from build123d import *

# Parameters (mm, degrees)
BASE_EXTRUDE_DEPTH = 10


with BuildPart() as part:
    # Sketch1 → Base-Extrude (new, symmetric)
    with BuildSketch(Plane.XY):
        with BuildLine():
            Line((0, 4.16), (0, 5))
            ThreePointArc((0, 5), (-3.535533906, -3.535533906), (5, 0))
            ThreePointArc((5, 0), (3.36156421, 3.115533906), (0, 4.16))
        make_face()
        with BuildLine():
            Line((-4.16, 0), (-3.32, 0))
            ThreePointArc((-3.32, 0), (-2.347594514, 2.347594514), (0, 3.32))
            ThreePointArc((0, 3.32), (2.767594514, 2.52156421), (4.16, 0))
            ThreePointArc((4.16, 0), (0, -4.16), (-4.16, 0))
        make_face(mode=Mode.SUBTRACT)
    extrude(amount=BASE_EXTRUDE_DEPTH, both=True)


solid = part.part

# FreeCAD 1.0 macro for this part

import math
import FreeCAD as App
import Part
import Sketcher

V = App.Vector

doc = App.newDocument("Part")
body = doc.addObject("PartDesign::Body", "Body")

sketch1 = doc.addObject("Sketcher::SketchObject", "Sketch")
body.addObject(sketch1)
sketch1.AttachmentSupport = (doc.XY_Plane, [""])
sketch1.MapMode = "FlatFace"
sketch1.addGeometry([
    Part.LineSegment(V(0, 4.16, 0), V(0, 5, 0)),
    Part.ArcOfCircle(Part.Circle(V(0, 0, 0), V(0, 0, 1), 5), math.radians(90), math.radians(360)),
    Part.ArcOfCircle(Part.Circle(V(0.42, -0.42, 0), V(0, 0, 1), 4.599217), math.radians(5.239544), math.radians(95.239544)),
    Part.ArcOfCircle(Part.Circle(V(0, 0, 0), V(0, 0, 1), 4.16), math.radians(180), math.radians(360)),
    Part.LineSegment(V(-4.16, 0, 0), V(-3.32, 0, 0)),
    Part.ArcOfCircle(Part.Circle(V(0, 0, 0), V(0, 0, 1), 3.32), math.radians(90), math.radians(180)),
    Part.ArcOfCircle(Part.Circle(V(0.42, -0.42, 0), V(0, 0, 1), 3.763509), math.radians(6.40744), math.radians(96.40744)),
], False)
sketch1.addConstraint([
    Sketcher.Constraint("Coincident", 0, 2, 1, 1),
    Sketcher.Constraint("Coincident", 1, 2, 2, 1),
    Sketcher.Constraint("Coincident", 2, 2, 0, 1),
    Sketcher.Constraint("Coincident", 3, 1, 4, 1),
    Sketcher.Constraint("Coincident", 4, 2, 5, 2),
    Sketcher.Constraint("Coincident", 5, 1, 6, 2),
    Sketcher.Constraint("Coincident", 6, 1, 3, 2),
    Sketcher.Constraint("Vertical", 0),
    Sketcher.Constraint("Horizontal", 4),
    Sketcher.Constraint("Coincident", 1, 3, -1, 1),
    Sketcher.Constraint("Coincident", 3, 3, -1, 1),
    Sketcher.Constraint("Coincident", 5, 3, -1, 1),
    Sketcher.Constraint("Coincident", 6, 3, 2, 3),
    Sketcher.Constraint("PointOnObject", 0, 2, -2),
    Sketcher.Constraint("PointOnObject", 1, 2, -1),
    Sketcher.Constraint("PointOnObject", 3, 1, -1),
    Sketcher.Constraint("PointOnObject", 5, 1, -2),
    Sketcher.Constraint("PointOnObject", 6, 1, -1),
    Sketcher.Constraint("Equal", 4, 0),
    Sketcher.Constraint("Radius", 1, 5.0),
    Sketcher.Constraint("Radius", 3, 4.16),
    Sketcher.Constraint("Radius", 5, 3.32),
])
pad1 = doc.addObject("PartDesign::Pad", "Pad")
body.addObject(pad1)
pad1.Profile = sketch1
pad1.Length = 20
pad1.Midplane = True

doc.recompute()
